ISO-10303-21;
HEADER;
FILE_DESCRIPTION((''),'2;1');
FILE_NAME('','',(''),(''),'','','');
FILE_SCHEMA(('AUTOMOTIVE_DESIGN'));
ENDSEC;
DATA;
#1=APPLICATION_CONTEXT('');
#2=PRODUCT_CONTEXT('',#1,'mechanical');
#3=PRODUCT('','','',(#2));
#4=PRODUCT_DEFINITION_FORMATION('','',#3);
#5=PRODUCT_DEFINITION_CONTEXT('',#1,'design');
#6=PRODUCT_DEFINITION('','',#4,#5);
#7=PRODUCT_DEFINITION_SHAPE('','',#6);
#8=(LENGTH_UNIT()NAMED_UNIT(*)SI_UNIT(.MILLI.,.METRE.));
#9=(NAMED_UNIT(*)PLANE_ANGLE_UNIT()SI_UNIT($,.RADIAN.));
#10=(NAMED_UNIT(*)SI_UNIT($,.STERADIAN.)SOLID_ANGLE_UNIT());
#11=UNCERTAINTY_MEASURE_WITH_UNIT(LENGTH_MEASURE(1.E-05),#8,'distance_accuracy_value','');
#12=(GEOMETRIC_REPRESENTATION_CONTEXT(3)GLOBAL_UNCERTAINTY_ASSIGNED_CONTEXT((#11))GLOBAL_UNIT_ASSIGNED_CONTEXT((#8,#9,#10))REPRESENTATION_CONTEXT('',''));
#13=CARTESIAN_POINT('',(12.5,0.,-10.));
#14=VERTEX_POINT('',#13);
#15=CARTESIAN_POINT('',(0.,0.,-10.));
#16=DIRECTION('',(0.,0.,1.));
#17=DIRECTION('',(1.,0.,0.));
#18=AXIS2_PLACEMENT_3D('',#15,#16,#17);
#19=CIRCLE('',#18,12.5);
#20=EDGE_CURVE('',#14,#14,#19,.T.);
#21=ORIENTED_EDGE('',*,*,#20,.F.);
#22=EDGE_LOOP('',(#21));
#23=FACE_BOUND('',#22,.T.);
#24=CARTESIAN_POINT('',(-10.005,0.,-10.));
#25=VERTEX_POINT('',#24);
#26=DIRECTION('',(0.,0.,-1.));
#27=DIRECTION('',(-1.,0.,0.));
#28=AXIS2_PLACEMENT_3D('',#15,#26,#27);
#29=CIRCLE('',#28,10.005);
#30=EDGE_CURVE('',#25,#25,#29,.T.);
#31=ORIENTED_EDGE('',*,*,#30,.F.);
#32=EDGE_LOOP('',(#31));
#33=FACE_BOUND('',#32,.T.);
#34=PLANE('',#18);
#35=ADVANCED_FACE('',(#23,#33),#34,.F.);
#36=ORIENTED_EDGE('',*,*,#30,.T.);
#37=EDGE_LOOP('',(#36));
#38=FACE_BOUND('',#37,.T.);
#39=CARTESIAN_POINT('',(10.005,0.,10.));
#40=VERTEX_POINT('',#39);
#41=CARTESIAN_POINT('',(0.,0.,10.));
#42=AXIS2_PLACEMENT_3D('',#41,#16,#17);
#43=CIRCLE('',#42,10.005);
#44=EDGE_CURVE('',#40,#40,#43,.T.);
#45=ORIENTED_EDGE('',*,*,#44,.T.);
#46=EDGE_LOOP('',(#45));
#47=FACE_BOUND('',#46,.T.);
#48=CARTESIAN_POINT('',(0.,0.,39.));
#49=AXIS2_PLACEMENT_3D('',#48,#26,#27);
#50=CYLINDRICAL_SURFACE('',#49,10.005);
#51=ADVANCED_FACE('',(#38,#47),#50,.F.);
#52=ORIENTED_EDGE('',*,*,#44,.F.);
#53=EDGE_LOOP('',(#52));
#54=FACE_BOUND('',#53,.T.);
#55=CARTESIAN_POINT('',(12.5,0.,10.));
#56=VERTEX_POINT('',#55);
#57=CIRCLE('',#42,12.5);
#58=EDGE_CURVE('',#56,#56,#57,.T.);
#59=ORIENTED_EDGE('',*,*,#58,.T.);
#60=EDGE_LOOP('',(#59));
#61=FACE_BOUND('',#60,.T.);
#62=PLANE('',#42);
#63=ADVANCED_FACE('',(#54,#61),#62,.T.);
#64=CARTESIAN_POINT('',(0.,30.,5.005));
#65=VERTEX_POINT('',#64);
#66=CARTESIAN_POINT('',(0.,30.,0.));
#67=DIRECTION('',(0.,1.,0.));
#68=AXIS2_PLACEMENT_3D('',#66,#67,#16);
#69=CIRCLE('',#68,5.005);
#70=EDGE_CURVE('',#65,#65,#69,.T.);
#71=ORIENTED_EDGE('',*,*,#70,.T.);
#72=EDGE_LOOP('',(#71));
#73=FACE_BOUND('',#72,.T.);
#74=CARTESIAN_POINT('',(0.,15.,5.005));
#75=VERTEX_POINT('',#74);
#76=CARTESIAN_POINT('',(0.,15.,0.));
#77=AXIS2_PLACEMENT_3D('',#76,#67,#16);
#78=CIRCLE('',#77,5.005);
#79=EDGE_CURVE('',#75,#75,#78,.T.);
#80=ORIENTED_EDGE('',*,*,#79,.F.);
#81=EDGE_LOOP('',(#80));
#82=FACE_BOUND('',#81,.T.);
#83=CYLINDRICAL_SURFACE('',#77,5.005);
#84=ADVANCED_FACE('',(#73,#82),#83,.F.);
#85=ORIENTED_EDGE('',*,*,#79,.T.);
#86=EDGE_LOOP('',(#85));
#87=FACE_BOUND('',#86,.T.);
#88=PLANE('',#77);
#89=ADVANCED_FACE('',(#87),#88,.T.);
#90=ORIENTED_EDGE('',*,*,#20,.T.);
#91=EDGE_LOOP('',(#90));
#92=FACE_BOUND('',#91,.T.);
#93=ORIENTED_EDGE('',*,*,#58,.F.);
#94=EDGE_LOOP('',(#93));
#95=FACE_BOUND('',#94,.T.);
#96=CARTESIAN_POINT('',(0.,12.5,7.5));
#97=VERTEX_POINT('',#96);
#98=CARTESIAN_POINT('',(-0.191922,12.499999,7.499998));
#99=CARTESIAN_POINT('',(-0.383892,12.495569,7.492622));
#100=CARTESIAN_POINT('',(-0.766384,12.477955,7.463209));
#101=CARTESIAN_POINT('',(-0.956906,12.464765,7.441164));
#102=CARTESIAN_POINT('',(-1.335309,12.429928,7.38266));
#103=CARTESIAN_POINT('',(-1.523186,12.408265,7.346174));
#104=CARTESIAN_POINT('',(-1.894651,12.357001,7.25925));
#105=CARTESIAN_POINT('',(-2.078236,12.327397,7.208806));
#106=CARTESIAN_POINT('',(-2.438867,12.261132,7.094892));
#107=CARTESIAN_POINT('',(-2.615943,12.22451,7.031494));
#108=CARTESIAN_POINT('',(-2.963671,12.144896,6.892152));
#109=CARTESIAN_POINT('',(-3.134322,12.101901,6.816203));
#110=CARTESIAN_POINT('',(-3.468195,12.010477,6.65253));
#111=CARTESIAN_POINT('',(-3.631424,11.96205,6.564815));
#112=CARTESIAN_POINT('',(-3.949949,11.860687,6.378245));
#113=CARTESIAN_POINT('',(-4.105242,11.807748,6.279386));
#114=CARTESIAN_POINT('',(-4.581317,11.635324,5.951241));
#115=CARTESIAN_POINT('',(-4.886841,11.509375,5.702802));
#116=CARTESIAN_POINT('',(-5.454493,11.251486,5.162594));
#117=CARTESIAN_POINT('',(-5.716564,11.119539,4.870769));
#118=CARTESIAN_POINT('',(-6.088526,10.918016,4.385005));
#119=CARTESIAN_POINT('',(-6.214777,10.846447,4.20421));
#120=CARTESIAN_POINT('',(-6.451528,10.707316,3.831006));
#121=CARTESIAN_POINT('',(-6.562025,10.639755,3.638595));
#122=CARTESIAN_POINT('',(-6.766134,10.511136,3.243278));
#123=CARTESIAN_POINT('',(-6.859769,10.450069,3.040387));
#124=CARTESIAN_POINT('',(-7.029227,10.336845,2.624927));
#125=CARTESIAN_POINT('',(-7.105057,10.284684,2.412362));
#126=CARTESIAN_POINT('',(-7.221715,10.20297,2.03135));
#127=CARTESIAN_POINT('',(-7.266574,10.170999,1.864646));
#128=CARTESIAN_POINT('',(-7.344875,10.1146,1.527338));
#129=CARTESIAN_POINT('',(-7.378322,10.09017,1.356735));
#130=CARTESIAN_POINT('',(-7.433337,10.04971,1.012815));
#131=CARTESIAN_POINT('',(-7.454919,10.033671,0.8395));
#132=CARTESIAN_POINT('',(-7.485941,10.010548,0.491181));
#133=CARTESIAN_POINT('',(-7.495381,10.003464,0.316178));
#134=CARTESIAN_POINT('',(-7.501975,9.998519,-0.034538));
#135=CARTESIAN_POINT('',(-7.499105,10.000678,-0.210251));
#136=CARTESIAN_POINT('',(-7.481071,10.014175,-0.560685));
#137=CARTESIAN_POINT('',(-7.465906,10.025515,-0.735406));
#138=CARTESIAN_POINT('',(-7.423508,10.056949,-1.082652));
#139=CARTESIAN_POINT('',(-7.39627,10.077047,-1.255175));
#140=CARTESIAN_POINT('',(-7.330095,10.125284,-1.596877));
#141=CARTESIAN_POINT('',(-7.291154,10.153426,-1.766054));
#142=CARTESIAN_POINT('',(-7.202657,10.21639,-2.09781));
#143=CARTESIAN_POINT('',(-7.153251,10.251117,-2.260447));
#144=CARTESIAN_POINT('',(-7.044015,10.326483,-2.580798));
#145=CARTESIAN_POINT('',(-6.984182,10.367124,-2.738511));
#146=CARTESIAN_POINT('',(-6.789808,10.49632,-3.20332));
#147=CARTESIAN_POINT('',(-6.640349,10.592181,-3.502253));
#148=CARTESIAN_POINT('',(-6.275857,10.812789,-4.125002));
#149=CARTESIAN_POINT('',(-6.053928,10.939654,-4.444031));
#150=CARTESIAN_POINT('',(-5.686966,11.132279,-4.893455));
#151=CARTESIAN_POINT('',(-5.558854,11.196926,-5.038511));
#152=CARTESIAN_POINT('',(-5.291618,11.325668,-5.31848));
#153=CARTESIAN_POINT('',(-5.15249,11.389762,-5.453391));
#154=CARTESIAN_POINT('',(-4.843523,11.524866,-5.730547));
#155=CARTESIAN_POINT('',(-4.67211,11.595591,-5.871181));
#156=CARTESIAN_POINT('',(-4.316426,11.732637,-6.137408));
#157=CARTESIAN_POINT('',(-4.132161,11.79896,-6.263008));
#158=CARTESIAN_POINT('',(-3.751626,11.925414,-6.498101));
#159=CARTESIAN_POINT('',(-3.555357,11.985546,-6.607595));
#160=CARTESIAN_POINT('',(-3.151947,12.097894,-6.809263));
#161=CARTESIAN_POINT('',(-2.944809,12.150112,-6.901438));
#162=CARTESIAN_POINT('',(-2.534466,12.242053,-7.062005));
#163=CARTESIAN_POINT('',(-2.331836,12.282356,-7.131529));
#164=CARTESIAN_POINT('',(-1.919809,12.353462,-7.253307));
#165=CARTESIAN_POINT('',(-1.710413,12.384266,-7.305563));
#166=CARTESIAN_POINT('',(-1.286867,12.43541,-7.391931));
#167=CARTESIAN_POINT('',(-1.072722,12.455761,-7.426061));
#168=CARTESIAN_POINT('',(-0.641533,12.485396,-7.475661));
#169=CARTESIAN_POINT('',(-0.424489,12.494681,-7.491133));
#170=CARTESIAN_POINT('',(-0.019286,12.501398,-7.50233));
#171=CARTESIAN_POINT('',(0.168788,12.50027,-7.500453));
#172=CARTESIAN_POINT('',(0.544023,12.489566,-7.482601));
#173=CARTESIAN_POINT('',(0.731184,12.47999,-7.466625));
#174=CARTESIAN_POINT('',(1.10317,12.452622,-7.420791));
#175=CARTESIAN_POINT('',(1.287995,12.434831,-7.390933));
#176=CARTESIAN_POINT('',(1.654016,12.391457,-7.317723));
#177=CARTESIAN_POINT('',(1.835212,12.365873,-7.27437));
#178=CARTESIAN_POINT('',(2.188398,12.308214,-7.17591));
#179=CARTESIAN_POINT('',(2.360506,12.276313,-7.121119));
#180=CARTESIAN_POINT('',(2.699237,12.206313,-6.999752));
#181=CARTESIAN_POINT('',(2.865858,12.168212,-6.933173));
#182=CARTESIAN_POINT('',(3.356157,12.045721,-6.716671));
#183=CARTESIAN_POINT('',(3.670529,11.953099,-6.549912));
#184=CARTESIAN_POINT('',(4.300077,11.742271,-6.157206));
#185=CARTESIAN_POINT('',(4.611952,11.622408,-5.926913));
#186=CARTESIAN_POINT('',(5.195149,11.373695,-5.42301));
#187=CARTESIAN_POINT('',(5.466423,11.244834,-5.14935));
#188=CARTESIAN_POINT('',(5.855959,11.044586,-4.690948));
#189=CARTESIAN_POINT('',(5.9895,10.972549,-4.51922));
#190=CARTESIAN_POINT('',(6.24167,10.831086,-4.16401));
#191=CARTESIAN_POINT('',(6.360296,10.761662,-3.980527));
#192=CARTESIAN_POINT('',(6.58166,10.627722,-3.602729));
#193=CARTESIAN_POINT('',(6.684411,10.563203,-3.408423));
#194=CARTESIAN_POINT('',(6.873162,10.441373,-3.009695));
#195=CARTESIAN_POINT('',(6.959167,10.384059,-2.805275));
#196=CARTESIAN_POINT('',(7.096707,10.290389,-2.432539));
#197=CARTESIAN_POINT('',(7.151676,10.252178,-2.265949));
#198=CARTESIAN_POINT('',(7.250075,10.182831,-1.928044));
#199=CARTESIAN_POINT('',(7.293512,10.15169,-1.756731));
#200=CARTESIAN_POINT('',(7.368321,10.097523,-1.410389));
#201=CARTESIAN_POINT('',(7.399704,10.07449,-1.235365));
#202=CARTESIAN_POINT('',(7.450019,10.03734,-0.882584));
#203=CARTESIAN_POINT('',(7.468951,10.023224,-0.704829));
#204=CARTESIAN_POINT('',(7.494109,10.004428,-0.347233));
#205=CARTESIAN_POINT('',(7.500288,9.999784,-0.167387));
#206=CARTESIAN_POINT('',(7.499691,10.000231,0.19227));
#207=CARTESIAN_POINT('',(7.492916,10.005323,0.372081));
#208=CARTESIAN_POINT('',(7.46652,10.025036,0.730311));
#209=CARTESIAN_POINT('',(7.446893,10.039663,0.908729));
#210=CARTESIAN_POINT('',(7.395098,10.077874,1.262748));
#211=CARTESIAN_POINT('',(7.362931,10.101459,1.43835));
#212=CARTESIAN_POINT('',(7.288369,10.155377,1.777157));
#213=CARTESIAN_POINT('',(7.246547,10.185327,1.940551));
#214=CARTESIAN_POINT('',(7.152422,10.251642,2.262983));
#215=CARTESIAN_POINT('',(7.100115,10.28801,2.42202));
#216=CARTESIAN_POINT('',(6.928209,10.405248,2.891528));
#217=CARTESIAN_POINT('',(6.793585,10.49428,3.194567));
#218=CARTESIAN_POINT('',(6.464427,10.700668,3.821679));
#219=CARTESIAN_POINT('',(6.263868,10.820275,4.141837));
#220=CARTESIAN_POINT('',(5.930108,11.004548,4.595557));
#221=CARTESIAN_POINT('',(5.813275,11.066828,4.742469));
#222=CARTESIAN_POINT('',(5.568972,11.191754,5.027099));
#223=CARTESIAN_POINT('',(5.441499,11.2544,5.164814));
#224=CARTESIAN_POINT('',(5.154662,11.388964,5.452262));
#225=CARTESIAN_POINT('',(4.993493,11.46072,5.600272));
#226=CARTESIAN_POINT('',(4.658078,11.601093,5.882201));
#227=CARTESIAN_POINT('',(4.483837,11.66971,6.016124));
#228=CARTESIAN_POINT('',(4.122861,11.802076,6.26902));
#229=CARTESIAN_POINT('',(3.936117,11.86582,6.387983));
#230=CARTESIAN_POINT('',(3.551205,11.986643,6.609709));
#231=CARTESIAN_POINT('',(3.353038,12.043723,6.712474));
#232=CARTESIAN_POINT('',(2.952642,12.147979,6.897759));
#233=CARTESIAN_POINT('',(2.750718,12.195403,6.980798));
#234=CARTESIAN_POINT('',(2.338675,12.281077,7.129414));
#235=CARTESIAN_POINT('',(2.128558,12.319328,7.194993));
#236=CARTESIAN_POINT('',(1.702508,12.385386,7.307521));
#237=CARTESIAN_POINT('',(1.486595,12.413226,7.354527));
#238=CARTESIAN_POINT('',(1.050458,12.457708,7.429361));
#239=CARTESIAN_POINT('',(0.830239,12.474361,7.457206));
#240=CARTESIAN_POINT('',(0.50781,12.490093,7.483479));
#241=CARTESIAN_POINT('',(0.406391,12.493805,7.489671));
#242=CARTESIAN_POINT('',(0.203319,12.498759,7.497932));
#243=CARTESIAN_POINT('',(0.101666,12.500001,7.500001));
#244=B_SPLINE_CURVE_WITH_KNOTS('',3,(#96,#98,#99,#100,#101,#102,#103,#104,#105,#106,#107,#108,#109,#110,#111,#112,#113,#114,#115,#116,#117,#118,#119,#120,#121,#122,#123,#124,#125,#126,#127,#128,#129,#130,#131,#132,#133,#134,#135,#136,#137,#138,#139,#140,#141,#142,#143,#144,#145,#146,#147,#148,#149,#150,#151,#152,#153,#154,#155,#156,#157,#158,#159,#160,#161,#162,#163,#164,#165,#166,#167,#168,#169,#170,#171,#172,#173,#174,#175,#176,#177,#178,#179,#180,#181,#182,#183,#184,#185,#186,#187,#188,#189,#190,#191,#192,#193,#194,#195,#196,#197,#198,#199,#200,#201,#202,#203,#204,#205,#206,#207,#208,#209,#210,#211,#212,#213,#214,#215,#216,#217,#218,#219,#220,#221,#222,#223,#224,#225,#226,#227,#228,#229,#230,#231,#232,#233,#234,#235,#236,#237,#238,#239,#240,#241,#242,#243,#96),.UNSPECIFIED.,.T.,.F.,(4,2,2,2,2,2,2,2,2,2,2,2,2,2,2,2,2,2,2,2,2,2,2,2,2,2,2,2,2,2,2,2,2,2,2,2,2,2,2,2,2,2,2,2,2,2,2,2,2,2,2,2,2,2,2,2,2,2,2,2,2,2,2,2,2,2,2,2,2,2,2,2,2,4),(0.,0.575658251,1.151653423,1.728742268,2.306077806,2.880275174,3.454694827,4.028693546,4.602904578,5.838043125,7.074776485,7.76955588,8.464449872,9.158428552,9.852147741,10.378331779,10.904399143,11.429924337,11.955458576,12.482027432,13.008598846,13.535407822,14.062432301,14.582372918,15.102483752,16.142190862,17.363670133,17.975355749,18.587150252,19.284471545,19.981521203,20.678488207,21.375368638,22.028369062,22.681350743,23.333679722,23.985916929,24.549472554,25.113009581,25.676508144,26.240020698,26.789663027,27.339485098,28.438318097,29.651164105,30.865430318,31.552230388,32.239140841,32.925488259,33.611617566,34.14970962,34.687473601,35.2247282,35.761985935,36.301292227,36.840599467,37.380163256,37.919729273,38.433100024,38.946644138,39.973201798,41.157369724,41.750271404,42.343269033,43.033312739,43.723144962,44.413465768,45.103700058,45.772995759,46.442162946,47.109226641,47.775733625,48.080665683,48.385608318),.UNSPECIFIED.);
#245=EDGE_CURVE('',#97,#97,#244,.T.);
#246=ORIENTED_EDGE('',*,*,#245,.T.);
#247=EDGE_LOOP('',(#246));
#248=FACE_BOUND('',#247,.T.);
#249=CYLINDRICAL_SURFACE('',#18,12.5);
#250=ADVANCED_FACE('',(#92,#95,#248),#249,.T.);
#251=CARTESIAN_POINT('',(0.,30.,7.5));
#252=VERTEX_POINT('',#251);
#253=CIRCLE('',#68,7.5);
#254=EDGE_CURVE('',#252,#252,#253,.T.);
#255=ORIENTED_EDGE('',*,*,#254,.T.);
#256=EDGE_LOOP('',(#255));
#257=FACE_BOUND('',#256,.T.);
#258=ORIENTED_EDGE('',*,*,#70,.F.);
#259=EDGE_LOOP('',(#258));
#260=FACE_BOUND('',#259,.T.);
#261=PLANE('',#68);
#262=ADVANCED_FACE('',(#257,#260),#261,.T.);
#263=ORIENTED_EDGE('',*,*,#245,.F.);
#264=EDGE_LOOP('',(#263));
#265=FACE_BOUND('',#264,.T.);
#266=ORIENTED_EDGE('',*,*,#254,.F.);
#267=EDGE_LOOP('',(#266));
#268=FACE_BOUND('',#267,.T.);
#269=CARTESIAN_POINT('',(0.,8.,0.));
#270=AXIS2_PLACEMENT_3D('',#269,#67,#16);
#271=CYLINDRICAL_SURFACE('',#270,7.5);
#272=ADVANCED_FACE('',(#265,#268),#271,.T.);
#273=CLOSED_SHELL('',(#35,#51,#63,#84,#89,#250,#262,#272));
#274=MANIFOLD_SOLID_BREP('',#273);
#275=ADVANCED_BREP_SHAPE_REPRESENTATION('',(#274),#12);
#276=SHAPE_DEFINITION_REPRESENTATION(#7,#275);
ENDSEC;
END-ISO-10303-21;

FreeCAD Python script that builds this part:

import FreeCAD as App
import Part
import Sketcher
Q = App.Units.Quantity

doc = App.newDocument("Part")
params = doc.addObject("Spreadsheet::Sheet", "Params")
for row, (alias, value) in enumerate([
    ("sketch1_diameter", "15 mm"),
    ("pad1_length", "22 mm"),
    ("sketch2_diameter", "25 mm"),
    ("pad2_length", "10 mm"),
    ("pad2_length2", "10 mm"),
    ("sketch3_diameter", "20.01 mm"),
    ("pocket1_length", "49 mm"),
    ("sketch4_diameter", "10.01 mm"),
    ("pocket2_length", "15 mm"),
], start=1):
    params.set(f"A{row}", alias)
    params.set(f"B{row}", "=" + value)
    params.setAlias(f"B{row}", alias)

body = doc.addObject("PartDesign::Body", "Body")

# Sketch on XZ plane
sketch1 = body.newObject("Sketcher::SketchObject", "Sketch")
sketch1.AttachmentSupport = (doc.getObject("XZ_Plane"), [""])
sketch1.MapMode = "FlatFace"
sketch1.AttachmentOffset = App.Placement(App.Vector(0, 0, -30), App.Rotation())
sketch1.addGeometry(Part.Circle(App.Vector(0, 0, 0), App.Vector(0, 0, 1), 8), False)
sketch1.addConstraint([
    Sketcher.Constraint("Coincident", 0, 3, -1, 1),
    Sketcher.Constraint("Diameter", 0, Q("15 mm")),
])
sketch1.setExpression("Constraints[1]", "Params.sketch1_diameter")
pad1 = body.newObject("PartDesign::Pad", "Pad")
pad1.Profile = sketch1
pad1.setExpression("Length", "Params.pad1_length")

# Sketch on XY plane
sketch2 = body.newObject("Sketcher::SketchObject", "Sketch001")
sketch2.AttachmentSupport = (doc.getObject("XY_Plane"), [""])
sketch2.MapMode = "FlatFace"
sketch2.addGeometry(Part.Circle(App.Vector(0, 0, 0), App.Vector(0, 0, 1), 12), False)
sketch2.addConstraint([
    Sketcher.Constraint("Coincident", 0, 3, -1, 1),
    Sketcher.Constraint("Diameter", 0, Q("25 mm")),
])
sketch2.setExpression("Constraints[1]", "Params.sketch2_diameter")
pad2 = body.newObject("PartDesign::Pad", "Pad001")
pad2.Profile = sketch2
pad2.Type = "TwoLengths"
pad2.setExpression("Length", "Params.pad2_length")
pad2.setExpression("Length2", "Params.pad2_length2")

# Sketch on XY plane
sketch3 = body.newObject("Sketcher::SketchObject", "Sketch002")
sketch3.AttachmentSupport = (doc.getObject("XY_Plane"), [""])
sketch3.MapMode = "FlatFace"
sketch3.AttachmentOffset = App.Placement(App.Vector(0, 0, -10), App.Rotation())
sketch3.addGeometry(Part.Circle(App.Vector(0, 0, 0), App.Vector(0, 0, 1), 10), False)
sketch3.addConstraint([
    Sketcher.Constraint("Coincident", 0, 3, -1, 1),
    Sketcher.Constraint("Diameter", 0, Q("20.01 mm")),
])
sketch3.setExpression("Constraints[1]", "Params.sketch3_diameter")
pocket1 = body.newObject("PartDesign::Pocket", "Pocket")
pocket1.Profile = sketch3
pocket1.setExpression("Length", "Params.pocket1_length")
pocket1.Reversed = True

# Sketch on XZ plane
sketch4 = body.newObject("Sketcher::SketchObject", "Sketch003")
sketch4.AttachmentSupport = (doc.getObject("XZ_Plane"), [""])
sketch4.MapMode = "FlatFace"
sketch4.AttachmentOffset = App.Placement(App.Vector(0, 0, -30), App.Rotation())
sketch4.addGeometry(Part.Circle(App.Vector(0, 0, 0), App.Vector(0, 0, 1), 5), False)
sketch4.addConstraint([
    Sketcher.Constraint("Coincident", 0, 3, -1, 1),
    Sketcher.Constraint("Diameter", 0, Q("10.01 mm")),
])
sketch4.setExpression("Constraints[1]", "Params.sketch4_diameter")
pocket2 = body.newObject("PartDesign::Pocket", "Pocket001")
pocket2.Profile = sketch4
pocket2.setExpression("Length", "Params.pocket2_length")
pocket2.Reversed = True

doc.recompute()
